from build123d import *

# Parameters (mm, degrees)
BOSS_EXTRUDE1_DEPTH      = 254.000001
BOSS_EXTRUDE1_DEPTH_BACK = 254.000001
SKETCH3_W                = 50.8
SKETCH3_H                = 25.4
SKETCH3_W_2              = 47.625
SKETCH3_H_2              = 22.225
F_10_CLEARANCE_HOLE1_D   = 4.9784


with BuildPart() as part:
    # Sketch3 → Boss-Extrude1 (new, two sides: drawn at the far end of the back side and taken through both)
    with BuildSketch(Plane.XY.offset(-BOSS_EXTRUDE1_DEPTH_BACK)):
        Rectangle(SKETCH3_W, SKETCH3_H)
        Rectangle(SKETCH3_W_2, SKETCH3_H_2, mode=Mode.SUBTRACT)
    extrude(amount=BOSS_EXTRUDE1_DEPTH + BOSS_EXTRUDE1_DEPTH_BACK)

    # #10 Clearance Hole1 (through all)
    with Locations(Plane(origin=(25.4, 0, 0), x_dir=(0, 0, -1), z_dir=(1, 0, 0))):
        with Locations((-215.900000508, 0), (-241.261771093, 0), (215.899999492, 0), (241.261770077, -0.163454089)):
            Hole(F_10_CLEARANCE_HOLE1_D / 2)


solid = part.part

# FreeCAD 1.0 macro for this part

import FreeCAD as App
import Part
import Sketcher

V = App.Vector
Q = App.Units.Quantity


def add_polygon(sketch, points):
    """Adds a closed chain of lines whose ends are joined by coincident constraints."""
    first, n = sketch.GeometryCount, len(points)
    for a, b in zip(points, points[1:] + points[:1]):
        sketch.addGeometry(Part.LineSegment(App.Vector(*a, 0), App.Vector(*b, 0)), False)
    for i in range(n):
        sketch.addConstraint(Sketcher.Constraint("Coincident", first + i, 2, first + (i + 1) % n, 1))

doc = App.newDocument("Part")
body = doc.addObject("PartDesign::Body", "Body")

sketch1 = body.newObject("Sketcher::SketchObject", "Sketch")
sketch1.AttachmentSupport = (doc.getObject("XY_Plane"), [""])
sketch1.MapMode = "FlatFace"
add_polygon(sketch1, [(-25.4, 12.7), (-25.4, -12.7), (25.4, -12.7), (25.4, 12.7)])
add_polygon(sketch1, [(23.8125, -11.1125), (-23.8125, -11.1125), (-23.8125, 11.1125), (23.8125, 11.1125)])
sketch1.addConstraint([
    Sketcher.Constraint("Vertical", 0),
    Sketcher.Constraint("Horizontal", 1),
    Sketcher.Constraint("Vertical", 2),
    Sketcher.Constraint("Horizontal", 3),
    Sketcher.Constraint("Horizontal", 4),
    Sketcher.Constraint("Vertical", 5),
    Sketcher.Constraint("Horizontal", 6),
    Sketcher.Constraint("Vertical", 7),
    Sketcher.Constraint("Symmetric", 0, 2, 2, 2, -1, 1),
    Sketcher.Constraint("Symmetric", 4, 2, 6, 2, -1, 1),
    Sketcher.Constraint("DistanceX", 1, 1, 1, 2, Q("2 in")),
    Sketcher.Constraint("DistanceY", 0, 2, 0, 1, Q("1 in")),
    Sketcher.Constraint("DistanceX", 4, 2, 4, 1, Q("1.875 in")),
    Sketcher.Constraint("DistanceY", 5, 1, 5, 2, Q("0.875 in")),
])
pad1 = body.newObject("PartDesign::Pad", "Pad")
pad1.Profile = sketch1
pad1.Type = "TwoLengths"
pad1.Length = Q("10 in")
pad1.Length2 = Q("10 in")

sketch2 = body.newObject("Sketcher::SketchObject", "Sketch001")
sketch2.AttachmentSupport = (doc.getObject("YZ_Plane"), [""])
sketch2.MapMode = "FlatFace"
sketch2.AttachmentOffset = App.Placement(V(0, 0, 1 * 25.4), App.Rotation())
sketch2.addGeometry([
    Part.Circle(V(0, 215.900001, 0), V(0, 0, 1), 2.4892),
    Part.Circle(V(0, 241.261771, 0), V(0, 0, 1), 2.4892),
    Part.Circle(V(0, -215.899999, 0), V(0, 0, 1), 2.4892),
    Part.Circle(V(-0.163454, -241.26177, 0), V(0, 0, 1), 2.4892),
], False)
sketch2.addConstraint([
    Sketcher.Constraint("Equal", 0, 1),
    Sketcher.Constraint("Equal", 1, 2),
    Sketcher.Constraint("Equal", 2, 3),
    Sketcher.Constraint("Symmetric", 0, 3, 2, 3, -1, 1),
    Sketcher.Constraint("PointOnObject", 0, 3, -2),
    Sketcher.Constraint("PointOnObject", 1, 3, -2),
    Sketcher.Constraint("Diameter", 0, Q("0.196 in")),
    Sketcher.Constraint("DistanceY", 2, 3, 0, 3, Q("17 in")),
    Sketcher.Constraint("DistanceY", -1, 1, 1, 3, 241.261771),
    Sketcher.Constraint("DistanceY", 3, 3, -1, 1, 241.26177),
    Sketcher.Constraint("DistanceX", 3, 3, -1, 1, 0.163454),
])
doc.recompute()
hole = body.newObject("PartDesign::Hole", "Hole")
hole.Profile = sketch2
hole.ThreadType = "None"
hole.Diameter = Q("0.196 in")
hole.DepthType = "ThroughAll"

doc.recompute()
